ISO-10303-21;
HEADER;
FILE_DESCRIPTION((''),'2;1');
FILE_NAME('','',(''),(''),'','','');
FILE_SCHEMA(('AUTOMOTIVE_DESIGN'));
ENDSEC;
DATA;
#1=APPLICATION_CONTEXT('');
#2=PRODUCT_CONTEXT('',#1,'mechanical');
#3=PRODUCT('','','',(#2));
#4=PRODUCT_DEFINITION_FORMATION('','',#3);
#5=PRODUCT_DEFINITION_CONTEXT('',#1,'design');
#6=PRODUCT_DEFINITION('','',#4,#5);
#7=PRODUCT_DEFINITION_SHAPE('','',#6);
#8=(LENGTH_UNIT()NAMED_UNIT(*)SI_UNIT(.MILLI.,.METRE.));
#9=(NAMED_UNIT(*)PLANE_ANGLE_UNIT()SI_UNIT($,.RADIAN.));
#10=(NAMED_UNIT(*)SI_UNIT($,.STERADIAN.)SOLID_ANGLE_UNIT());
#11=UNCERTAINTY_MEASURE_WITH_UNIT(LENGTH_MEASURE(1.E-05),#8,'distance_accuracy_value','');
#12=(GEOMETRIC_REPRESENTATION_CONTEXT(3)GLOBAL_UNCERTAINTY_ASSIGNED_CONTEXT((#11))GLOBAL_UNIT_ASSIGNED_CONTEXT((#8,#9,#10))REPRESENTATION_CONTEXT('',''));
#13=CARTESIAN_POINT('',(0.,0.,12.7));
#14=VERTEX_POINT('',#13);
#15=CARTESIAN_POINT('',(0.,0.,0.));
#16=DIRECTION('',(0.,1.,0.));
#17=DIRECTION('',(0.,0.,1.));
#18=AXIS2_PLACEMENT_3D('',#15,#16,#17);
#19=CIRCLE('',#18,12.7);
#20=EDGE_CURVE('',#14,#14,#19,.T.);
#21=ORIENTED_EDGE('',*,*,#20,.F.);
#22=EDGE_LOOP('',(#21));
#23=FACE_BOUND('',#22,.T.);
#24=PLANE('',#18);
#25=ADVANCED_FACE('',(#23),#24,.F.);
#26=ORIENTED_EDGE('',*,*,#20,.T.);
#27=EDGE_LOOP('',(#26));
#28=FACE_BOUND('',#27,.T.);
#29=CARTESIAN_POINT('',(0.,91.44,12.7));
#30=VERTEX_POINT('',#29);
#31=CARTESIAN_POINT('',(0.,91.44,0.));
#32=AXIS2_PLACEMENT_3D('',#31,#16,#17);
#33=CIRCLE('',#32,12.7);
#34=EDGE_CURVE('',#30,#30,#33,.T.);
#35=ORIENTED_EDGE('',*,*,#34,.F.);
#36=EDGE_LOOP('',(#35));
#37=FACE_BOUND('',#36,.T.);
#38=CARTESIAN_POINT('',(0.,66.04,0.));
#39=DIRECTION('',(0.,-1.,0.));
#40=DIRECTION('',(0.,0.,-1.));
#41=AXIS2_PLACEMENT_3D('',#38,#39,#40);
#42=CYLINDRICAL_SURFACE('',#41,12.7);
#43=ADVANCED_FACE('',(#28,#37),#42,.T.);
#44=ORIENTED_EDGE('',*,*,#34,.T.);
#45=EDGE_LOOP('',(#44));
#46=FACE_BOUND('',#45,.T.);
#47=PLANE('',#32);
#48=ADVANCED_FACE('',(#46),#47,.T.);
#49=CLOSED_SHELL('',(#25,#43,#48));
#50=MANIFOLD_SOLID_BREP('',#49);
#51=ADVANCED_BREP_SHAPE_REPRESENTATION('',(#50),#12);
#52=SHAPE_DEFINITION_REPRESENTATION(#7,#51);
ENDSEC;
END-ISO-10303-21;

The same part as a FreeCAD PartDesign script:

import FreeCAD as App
import Part
import Sketcher
from FreeCAD import Vector
Q = App.Units.Quantity

doc = App.newDocument("Part")
body = doc.addObject("PartDesign::Body", "Body")

# Sketch on XZ plane
sketch1 = doc.addObject("Sketcher::SketchObject", "Sketch")
body.addObject(sketch1)
sketch1.AttachmentSupport = (doc.XZ_Plane, [""])
sketch1.MapMode = "FlatFace"
sketch1.addGeometry(Part.Circle(Vector(0, 0, 0), Vector(0, 0, 1), 13), False)
sketch1.addConstraint([
    Sketcher.Constraint("Coincident", 0, 3, -1, 1),
    Sketcher.Constraint("Diameter", 0, Q("1 in")),
])
pad1 = doc.addObject("PartDesign::Pad", "Pad")
body.addObject(pad1)
pad1.Profile = sketch1
pad1.Length = Q("2.6 in")
pad1.Reversed = True

# Sketch on XZ plane
sketch2 = doc.addObject("Sketcher::SketchObject", "Sketch001")
body.addObject(sketch2)
sketch2.AttachmentSupport = (doc.XZ_Plane, [""])
sketch2.MapMode = "FlatFace"
sketch2.AttachmentOffset = App.Placement(Vector(0, 0, -2.6 * 25.4), App.Rotation())
sketch2.addGeometry(Part.Circle(Vector(0, 0, 0), Vector(0, 0, 1), 13), False)
sketch2.addConstraint([
    Sketcher.Constraint("Coincident", 0, 3, -1, 1),
    Sketcher.Constraint("Diameter", 0, Q("1 in")),
])
pad2 = doc.addObject("PartDesign::Pad", "Pad001")
body.addObject(pad2)
pad2.Profile = sketch2
pad2.Length = Q("1 in")
pad2.Reversed = True

doc.recompute()
